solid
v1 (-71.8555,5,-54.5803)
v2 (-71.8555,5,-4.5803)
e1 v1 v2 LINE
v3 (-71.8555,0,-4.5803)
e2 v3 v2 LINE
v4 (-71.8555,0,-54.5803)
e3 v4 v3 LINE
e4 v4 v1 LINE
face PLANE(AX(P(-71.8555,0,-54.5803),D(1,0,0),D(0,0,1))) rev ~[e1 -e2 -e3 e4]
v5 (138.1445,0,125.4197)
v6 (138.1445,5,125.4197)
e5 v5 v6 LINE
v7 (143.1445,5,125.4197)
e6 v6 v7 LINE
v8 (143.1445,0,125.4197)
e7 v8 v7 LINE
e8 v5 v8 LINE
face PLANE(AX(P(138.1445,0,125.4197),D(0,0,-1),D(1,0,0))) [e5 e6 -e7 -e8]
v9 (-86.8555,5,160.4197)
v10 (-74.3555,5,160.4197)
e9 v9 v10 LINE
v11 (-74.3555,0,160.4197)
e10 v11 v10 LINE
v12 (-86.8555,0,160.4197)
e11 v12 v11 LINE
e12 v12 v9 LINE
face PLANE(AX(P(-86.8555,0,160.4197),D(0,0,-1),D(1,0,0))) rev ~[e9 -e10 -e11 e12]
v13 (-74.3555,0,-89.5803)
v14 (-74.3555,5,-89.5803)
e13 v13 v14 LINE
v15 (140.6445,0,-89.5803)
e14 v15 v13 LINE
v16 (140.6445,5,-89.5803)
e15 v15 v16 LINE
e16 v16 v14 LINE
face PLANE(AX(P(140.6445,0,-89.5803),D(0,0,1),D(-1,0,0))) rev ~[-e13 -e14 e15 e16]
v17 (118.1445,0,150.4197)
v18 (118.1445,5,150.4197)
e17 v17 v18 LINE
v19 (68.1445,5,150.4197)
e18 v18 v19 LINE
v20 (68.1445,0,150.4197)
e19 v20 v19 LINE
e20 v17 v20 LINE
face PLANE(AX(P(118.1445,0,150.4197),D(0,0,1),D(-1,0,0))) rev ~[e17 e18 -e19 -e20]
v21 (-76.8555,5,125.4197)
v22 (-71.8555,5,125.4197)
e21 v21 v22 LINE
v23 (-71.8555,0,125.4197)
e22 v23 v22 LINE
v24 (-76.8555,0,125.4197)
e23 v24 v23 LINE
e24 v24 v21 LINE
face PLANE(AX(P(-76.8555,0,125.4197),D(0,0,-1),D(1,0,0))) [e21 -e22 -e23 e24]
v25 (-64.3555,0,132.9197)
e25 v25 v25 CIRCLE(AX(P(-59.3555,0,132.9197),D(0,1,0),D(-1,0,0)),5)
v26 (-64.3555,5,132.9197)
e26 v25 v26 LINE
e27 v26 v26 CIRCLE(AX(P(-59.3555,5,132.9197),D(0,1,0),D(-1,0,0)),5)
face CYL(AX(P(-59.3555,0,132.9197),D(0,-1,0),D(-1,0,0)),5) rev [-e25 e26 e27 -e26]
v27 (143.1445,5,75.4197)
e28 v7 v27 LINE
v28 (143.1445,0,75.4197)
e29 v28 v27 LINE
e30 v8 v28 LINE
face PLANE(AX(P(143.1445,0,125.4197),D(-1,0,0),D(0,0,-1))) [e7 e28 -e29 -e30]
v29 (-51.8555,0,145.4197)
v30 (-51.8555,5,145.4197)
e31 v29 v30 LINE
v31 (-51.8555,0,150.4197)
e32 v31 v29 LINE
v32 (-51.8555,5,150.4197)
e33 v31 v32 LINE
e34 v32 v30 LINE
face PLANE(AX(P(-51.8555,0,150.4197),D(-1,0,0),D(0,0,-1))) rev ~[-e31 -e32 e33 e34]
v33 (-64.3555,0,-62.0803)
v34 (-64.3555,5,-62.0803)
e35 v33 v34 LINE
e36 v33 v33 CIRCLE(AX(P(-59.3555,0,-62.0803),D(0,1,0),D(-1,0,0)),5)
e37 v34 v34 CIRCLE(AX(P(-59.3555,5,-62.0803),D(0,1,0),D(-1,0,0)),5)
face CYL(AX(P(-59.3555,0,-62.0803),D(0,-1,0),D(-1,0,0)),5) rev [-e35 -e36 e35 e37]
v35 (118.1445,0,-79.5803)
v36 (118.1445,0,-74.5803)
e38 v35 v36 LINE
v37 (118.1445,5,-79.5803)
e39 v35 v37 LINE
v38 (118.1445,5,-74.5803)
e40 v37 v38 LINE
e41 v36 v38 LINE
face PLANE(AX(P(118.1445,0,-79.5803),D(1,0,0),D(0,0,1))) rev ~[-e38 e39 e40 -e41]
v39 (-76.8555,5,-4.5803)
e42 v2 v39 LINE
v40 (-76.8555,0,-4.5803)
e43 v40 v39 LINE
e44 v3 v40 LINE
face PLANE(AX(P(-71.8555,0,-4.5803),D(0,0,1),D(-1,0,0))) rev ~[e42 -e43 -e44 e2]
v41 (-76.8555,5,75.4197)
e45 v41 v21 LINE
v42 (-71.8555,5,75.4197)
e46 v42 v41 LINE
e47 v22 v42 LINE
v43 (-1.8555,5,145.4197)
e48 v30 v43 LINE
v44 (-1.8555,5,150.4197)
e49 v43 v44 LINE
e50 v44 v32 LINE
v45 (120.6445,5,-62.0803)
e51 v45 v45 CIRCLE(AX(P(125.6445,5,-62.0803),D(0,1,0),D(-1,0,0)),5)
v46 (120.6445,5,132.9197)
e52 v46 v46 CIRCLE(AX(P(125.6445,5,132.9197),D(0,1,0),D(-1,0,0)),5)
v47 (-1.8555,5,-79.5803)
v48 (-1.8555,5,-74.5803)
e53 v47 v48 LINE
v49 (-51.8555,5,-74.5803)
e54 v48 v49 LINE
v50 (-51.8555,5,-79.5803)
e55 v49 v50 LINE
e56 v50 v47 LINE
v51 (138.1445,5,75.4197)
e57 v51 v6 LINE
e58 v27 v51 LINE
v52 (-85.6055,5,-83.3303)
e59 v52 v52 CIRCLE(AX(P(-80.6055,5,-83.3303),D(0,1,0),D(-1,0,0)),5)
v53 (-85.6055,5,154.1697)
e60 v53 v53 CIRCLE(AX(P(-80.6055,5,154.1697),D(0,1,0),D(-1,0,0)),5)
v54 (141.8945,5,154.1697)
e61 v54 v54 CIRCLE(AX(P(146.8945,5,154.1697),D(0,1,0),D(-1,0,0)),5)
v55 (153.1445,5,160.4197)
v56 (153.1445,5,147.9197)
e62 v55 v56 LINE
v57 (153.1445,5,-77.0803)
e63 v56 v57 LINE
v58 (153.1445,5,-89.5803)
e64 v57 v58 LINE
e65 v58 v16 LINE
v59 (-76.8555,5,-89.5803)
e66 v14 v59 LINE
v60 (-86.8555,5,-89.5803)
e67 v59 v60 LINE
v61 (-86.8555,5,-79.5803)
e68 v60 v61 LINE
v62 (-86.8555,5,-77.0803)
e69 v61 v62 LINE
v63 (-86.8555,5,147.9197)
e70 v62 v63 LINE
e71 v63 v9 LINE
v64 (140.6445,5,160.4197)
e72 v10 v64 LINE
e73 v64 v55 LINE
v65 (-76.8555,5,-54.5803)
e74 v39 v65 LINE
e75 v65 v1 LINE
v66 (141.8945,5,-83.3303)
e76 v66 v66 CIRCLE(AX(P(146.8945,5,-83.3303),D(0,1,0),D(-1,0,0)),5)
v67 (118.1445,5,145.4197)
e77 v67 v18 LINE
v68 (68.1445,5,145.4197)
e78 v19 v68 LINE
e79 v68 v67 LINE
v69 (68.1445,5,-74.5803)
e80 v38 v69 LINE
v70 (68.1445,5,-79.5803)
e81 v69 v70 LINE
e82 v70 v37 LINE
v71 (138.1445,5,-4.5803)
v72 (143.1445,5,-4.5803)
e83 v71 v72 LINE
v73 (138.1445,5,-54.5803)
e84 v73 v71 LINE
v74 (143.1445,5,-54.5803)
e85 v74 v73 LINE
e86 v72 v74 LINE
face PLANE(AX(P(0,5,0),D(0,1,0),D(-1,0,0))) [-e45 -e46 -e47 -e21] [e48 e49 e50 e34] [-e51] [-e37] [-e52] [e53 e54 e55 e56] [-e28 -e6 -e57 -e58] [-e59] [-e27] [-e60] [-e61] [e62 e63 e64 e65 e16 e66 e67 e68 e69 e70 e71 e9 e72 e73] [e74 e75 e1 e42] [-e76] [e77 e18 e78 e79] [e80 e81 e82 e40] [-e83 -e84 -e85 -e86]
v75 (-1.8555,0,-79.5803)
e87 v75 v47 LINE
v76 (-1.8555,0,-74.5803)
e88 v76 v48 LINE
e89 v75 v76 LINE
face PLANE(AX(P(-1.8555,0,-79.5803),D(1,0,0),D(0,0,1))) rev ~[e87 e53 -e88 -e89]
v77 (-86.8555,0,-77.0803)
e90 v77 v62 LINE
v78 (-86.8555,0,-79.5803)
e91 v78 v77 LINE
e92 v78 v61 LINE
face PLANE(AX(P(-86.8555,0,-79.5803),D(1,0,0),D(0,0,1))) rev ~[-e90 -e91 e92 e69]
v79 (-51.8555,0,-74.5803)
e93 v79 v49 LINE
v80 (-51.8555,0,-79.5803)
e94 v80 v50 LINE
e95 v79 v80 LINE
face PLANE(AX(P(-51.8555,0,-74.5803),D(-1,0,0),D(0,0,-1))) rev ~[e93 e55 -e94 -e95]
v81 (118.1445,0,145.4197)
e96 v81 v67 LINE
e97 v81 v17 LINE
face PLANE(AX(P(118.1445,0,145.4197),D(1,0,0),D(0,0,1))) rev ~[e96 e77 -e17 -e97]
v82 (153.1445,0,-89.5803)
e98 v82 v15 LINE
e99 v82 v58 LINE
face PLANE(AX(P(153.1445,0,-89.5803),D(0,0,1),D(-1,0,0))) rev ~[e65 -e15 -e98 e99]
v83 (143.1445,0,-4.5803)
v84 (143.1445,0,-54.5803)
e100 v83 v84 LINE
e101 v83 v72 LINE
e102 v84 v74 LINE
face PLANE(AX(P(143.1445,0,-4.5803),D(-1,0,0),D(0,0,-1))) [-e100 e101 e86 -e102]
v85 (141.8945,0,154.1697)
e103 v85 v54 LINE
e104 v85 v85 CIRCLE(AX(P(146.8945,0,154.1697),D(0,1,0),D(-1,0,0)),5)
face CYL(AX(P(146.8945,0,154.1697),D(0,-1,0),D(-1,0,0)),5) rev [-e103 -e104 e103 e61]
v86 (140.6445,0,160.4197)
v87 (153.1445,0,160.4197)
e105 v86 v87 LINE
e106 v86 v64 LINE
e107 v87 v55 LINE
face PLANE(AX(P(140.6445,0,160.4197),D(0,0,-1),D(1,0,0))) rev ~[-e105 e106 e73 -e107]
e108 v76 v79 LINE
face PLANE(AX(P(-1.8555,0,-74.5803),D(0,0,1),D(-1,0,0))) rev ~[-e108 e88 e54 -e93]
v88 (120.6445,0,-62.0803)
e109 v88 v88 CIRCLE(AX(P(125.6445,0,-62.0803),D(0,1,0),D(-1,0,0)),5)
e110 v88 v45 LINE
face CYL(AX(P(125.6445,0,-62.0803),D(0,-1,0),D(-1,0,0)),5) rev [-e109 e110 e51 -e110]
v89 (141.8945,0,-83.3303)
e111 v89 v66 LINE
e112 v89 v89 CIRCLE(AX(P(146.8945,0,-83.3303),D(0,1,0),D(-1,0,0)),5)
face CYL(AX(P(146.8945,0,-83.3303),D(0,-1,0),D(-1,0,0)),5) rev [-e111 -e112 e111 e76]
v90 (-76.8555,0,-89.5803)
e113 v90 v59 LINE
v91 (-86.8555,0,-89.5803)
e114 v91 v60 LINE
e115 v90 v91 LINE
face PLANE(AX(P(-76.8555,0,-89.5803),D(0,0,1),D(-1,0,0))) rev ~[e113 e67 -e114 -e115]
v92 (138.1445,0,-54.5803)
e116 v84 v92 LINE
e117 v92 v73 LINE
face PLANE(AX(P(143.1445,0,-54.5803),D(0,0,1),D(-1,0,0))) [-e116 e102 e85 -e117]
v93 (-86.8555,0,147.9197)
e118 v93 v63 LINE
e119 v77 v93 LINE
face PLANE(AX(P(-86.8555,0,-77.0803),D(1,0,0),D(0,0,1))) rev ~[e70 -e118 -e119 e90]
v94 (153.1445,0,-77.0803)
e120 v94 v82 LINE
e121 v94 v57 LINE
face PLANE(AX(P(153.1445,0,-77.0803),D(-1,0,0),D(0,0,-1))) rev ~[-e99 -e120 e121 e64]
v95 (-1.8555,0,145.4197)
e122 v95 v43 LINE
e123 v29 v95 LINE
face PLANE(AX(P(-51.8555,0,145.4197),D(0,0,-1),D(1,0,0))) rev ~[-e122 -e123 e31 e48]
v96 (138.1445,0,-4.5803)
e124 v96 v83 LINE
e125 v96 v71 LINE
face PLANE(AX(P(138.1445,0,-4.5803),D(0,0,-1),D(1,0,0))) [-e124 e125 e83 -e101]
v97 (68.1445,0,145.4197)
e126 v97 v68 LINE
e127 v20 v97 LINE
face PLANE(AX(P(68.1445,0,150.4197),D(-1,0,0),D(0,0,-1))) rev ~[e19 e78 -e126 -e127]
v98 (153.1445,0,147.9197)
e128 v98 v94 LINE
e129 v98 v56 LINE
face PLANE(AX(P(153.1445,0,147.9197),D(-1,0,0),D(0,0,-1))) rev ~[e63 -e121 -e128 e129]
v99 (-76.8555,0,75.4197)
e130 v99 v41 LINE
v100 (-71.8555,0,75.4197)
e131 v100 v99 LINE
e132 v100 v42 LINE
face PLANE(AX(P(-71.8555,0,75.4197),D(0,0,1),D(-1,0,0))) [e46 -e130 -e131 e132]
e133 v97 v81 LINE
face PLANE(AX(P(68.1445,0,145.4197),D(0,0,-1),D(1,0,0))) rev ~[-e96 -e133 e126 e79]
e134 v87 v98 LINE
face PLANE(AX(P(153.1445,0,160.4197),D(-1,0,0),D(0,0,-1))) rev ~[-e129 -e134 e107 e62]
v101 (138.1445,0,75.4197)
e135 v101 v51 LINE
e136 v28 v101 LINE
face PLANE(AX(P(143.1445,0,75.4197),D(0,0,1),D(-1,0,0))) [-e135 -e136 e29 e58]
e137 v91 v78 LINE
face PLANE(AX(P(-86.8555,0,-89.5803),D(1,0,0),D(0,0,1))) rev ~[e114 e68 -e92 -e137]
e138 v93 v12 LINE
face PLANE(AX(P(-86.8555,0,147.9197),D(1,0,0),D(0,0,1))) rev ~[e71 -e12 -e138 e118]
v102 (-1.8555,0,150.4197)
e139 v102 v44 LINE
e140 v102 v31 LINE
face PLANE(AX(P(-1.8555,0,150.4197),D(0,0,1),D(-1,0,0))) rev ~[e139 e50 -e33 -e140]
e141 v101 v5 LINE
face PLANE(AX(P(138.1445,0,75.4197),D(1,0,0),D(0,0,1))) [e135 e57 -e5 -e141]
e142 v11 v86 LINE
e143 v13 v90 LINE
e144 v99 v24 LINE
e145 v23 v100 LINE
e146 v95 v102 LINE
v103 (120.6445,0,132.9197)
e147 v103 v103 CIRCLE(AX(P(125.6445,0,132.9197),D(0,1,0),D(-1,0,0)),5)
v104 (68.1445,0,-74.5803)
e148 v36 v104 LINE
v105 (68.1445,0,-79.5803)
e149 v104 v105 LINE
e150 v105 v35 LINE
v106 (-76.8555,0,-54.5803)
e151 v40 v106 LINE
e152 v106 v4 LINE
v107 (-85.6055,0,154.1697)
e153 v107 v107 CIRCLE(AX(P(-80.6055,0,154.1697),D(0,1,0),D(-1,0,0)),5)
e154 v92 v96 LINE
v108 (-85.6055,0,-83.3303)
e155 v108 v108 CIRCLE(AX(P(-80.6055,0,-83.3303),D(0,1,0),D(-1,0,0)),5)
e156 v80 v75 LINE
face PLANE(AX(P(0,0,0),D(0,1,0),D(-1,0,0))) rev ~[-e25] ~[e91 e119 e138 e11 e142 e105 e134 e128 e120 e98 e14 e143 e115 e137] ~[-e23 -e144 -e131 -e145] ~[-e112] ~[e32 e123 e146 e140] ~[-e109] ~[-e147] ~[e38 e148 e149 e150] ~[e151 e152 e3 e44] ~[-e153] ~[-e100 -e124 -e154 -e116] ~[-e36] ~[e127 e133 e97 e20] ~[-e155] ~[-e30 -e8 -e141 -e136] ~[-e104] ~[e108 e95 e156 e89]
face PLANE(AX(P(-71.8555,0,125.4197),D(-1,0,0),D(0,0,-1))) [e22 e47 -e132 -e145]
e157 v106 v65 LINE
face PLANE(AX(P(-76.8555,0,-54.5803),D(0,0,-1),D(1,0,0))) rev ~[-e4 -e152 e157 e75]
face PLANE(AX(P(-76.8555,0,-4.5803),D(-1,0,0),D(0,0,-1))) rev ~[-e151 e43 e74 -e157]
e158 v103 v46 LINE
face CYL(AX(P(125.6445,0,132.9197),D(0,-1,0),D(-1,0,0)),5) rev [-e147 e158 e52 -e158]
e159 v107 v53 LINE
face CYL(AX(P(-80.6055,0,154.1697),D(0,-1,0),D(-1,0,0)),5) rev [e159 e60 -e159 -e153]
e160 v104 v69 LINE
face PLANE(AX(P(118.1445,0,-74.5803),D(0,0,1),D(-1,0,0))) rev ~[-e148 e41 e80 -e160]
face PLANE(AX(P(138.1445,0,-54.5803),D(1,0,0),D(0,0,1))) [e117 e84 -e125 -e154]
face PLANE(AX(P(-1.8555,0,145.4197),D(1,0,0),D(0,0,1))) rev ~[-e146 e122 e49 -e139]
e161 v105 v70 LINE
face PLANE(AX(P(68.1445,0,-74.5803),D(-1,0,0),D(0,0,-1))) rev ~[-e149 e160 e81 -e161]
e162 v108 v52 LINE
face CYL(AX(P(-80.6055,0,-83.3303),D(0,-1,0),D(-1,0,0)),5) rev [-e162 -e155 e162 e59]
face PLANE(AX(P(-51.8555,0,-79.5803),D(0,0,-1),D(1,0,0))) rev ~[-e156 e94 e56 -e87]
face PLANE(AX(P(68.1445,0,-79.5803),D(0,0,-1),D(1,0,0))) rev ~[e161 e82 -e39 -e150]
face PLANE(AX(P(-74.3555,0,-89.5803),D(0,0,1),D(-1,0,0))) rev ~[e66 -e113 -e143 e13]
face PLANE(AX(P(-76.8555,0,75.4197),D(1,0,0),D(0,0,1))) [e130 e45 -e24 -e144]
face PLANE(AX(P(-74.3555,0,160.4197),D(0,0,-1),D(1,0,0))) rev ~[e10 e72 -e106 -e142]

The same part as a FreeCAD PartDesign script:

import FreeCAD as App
import Part
import Sketcher

V = App.Vector


def add_polygon(sketch, points):
    """Adds a closed chain of lines whose ends are joined by coincident constraints."""
    first, n = sketch.GeometryCount, len(points)
    for a, b in zip(points, points[1:] + points[:1]):
        sketch.addGeometry(Part.LineSegment(App.Vector(*a, 0), App.Vector(*b, 0)), False)
    for i in range(n):
        sketch.addConstraint(Sketcher.Constraint("Coincident", first + i, 2, first + (i + 1) % n, 1))

doc = App.newDocument("Part")
body = doc.addObject("PartDesign::Body", "Body")

# Sketch on XZ plane
sketch1 = body.newObject("Sketcher::SketchObject", "Sketch")
sketch1.AttachmentSupport = (doc.getObject("XZ_Plane"), [""])
sketch1.MapMode = "FlatFace"
add_polygon(sketch1, [(153.1445, -89.5803), (-86.8555, -89.5803), (-86.8555, 160.4197), (153.1445, 160.4197)])  # lines 0-3
sketch1.addGeometry(Part.Circle(V(146.8945, -83.3303, 0), V(0, 0, 1), 5), False)  # 4
sketch1.addGeometry(Part.Circle(V(125.6445, -62.0803, 0), V(0, 0, 1), 5), False)  # 5
add_polygon(sketch1, [(138.1445, -4.5803), (138.1445, -54.5803), (143.1445, -54.5803), (143.1445, -4.5803)])  # lines 6-9
add_polygon(sketch1, [(118.1445, -79.5803), (118.1445, -74.5803), (68.1445, -74.5803), (68.1445, -79.5803)])  # lines 10-13
add_polygon(sketch1, [(-1.8555, -79.5803), (-1.8555, -74.5803), (-51.8555, -74.5803), (-51.8555, -79.5803)])  # lines 14-17
sketch1.addGeometry(Part.Circle(V(-80.6055, -83.3303, 0), V(0, 0, 1), 5), False)  # 18
sketch1.addGeometry(Part.Circle(V(-59.3555, -62.0803, 0), V(0, 0, 1), 5), False)  # 19
add_polygon(sketch1, [(-76.8555, -54.5803), (-71.8555, -54.5803), (-71.8555, -4.5803), (-76.8555, -4.5803)])  # lines 20-23
add_polygon(sketch1, [(143.1445, 75.4197), (143.1445, 125.4197), (138.1445, 125.4197), (138.1445, 75.4197)])  # lines 24-27
sketch1.addGeometry(Part.Circle(V(125.6445, 132.9197, 0), V(0, 0, 1), 5), False)  # 28
sketch1.addGeometry(Part.Circle(V(146.8945, 154.1697, 0), V(0, 0, 1), 5), False)  # 29
add_polygon(sketch1, [(68.1445, 150.4197), (68.1445, 145.4197), (118.1445, 145.4197), (118.1445, 150.4197)])  # lines 30-33
add_polygon(sketch1, [(-76.8555, 125.4197), (-76.8555, 75.4197), (-71.8555, 75.4197), (-71.8555, 125.4197)])  # lines 34-37
add_polygon(sketch1, [(-51.8555, 150.4197), (-51.8555, 145.4197), (-1.8555, 145.4197), (-1.8555, 150.4197)])  # lines 38-41
sketch1.addGeometry(Part.Circle(V(-59.3555, 132.9197, 0), V(0, 0, 1), 5), False)  # 42
sketch1.addGeometry(Part.Circle(V(-80.6055, 154.1697, 0), V(0, 0, 1), 5), False)  # 43
sketch1.addConstraint(Sketcher.Constraint("Horizontal", 0))
sketch1.addConstraint(Sketcher.Constraint("Vertical", 1))
sketch1.addConstraint(Sketcher.Constraint("Horizontal", 2))
sketch1.addConstraint(Sketcher.Constraint("Vertical", 3))
sketch1.addConstraint(Sketcher.Constraint("Vertical", 6))
sketch1.addConstraint(Sketcher.Constraint("Horizontal", 7))
sketch1.addConstraint(Sketcher.Constraint("Vertical", 8))
sketch1.addConstraint(Sketcher.Constraint("Horizontal", 9))
sketch1.addConstraint(Sketcher.Constraint("Vertical", 10))
sketch1.addConstraint(Sketcher.Constraint("Horizontal", 11))
sketch1.addConstraint(Sketcher.Constraint("Vertical", 12))
sketch1.addConstraint(Sketcher.Constraint("Horizontal", 13))
sketch1.addConstraint(Sketcher.Constraint("Vertical", 14))
sketch1.addConstraint(Sketcher.Constraint("Horizontal", 15))
sketch1.addConstraint(Sketcher.Constraint("Vertical", 16))
sketch1.addConstraint(Sketcher.Constraint("Horizontal", 17))
sketch1.addConstraint(Sketcher.Constraint("Horizontal", 20))
sketch1.addConstraint(Sketcher.Constraint("Vertical", 21))
sketch1.addConstraint(Sketcher.Constraint("Horizontal", 22))
sketch1.addConstraint(Sketcher.Constraint("Vertical", 23))
sketch1.addConstraint(Sketcher.Constraint("Vertical", 24))
sketch1.addConstraint(Sketcher.Constraint("Horizontal", 25))
sketch1.addConstraint(Sketcher.Constraint("Vertical", 26))
sketch1.addConstraint(Sketcher.Constraint("Horizontal", 27))
sketch1.addConstraint(Sketcher.Constraint("Vertical", 30))
sketch1.addConstraint(Sketcher.Constraint("Horizontal", 31))
sketch1.addConstraint(Sketcher.Constraint("Vertical", 32))
sketch1.addConstraint(Sketcher.Constraint("Horizontal", 33))
sketch1.addConstraint(Sketcher.Constraint("Vertical", 34))
sketch1.addConstraint(Sketcher.Constraint("Horizontal", 35))
sketch1.addConstraint(Sketcher.Constraint("Vertical", 36))
sketch1.addConstraint(Sketcher.Constraint("Horizontal", 37))
sketch1.addConstraint(Sketcher.Constraint("Vertical", 38))
sketch1.addConstraint(Sketcher.Constraint("Horizontal", 39))
sketch1.addConstraint(Sketcher.Constraint("Vertical", 40))
sketch1.addConstraint(Sketcher.Constraint("Horizontal", 41))
sketch1.addConstraint(Sketcher.Constraint("Equal", 4, 5))
sketch1.addConstraint(Sketcher.Constraint("Equal", 5, 18))
sketch1.addConstraint(Sketcher.Constraint("Equal", 18, 19))
sketch1.addConstraint(Sketcher.Constraint("Equal", 19, 28))
sketch1.addConstraint(Sketcher.Constraint("Equal", 28, 29))
sketch1.addConstraint(Sketcher.Constraint("Equal", 29, 42))
sketch1.addConstraint(Sketcher.Constraint("Equal", 42, 43))
sketch1.addConstraint(Sketcher.Constraint("Horizontal", 4, 3, 18, 3))
sketch1.addConstraint(Sketcher.Constraint("Horizontal", 5, 3, 19, 3))
sketch1.addConstraint(Sketcher.Constraint("Horizontal", 28, 3, 42, 3))
sketch1.addConstraint(Sketcher.Constraint("Horizontal", 29, 3, 43, 3))
sketch1.addConstraint(Sketcher.Constraint("Horizontal", 11, 2, 14, 2))
sketch1.addConstraint(Sketcher.Constraint("Horizontal", 13, 2, 16, 2))
sketch1.addConstraint(Sketcher.Constraint("Horizontal", 7, 2, 20, 2))
sketch1.addConstraint(Sketcher.Constraint("Horizontal", 9, 2, 21, 2))
sketch1.addConstraint(Sketcher.Constraint("Horizontal", 27, 2, 34, 2))
sketch1.addConstraint(Sketcher.Constraint("Horizontal", 25, 2, 36, 2))
sketch1.addConstraint(Sketcher.Constraint("Horizontal", 31, 2, 38, 2))
sketch1.addConstraint(Sketcher.Constraint("Horizontal", 33, 2, 40, 2))
sketch1.addConstraint(Sketcher.Constraint("Vertical", 5, 3, 28, 3))
sketch1.addConstraint(Sketcher.Constraint("Vertical", 4, 3, 29, 3))
sketch1.addConstraint(Sketcher.Constraint("Vertical", 19, 3, 42, 3))
sketch1.addConstraint(Sketcher.Constraint("Vertical", 18, 3, 43, 3))
sketch1.addConstraint(Sketcher.Constraint("Vertical", 8, 2, 24, 2))
sketch1.addConstraint(Sketcher.Constraint("Vertical", 9, 2, 25, 2))
sketch1.addConstraint(Sketcher.Constraint("Vertical", 12, 2, 30, 2))
sketch1.addConstraint(Sketcher.Constraint("Vertical", 13, 2, 31, 2))
sketch1.addConstraint(Sketcher.Constraint("Vertical", 23, 2, 34, 2))
sketch1.addConstraint(Sketcher.Constraint("Vertical", 21, 2, 35, 2))
sketch1.addConstraint(Sketcher.Constraint("Vertical", 16, 2, 38, 2))
sketch1.addConstraint(Sketcher.Constraint("Vertical", 17, 2, 39, 2))
sketch1.addConstraint(Sketcher.Constraint("Equal", 13, 15))
sketch1.addConstraint(Sketcher.Constraint("Equal", 9, 20))
sketch1.addConstraint(Sketcher.Constraint("Equal", 41, 6))
sketch1.addConstraint(Sketcher.Constraint("Equal", 37, 10))
sketch1.addConstraint(Sketcher.Constraint("Equal", 23, 24))
sketch1.addConstraint(Sketcher.Constraint("Equal", 16, 30))
sketch1.addConstraint(Sketcher.Constraint("Diameter", 4, 10.0))
sketch1.addConstraint(Sketcher.Constraint("DistanceX", 0, 2, 0, 1, 240.0))
sketch1.addConstraint(Sketcher.Constraint("DistanceX", 7, 1, 7, 2, 5.0))
sketch1.addConstraint(Sketcher.Constraint("DistanceY", 1, 1, 1, 2, 250.0))
sketch1.addConstraint(Sketcher.Constraint("DistanceY", 3, 2, 6, 2, 35.0))
sketch1.addConstraint(Sketcher.Constraint("DistanceX", 7, 2, 3, 2, 10.0))
sketch1.addConstraint(Sketcher.Constraint("DistanceX", 10, 2, 3, 2, 35.0))
sketch1.addConstraint(Sketcher.Constraint("DistanceX", 0, 2, 15, 2, 35.0))
sketch1.addConstraint(Sketcher.Constraint("DistanceY", 0, 2, 16, 2, 10.0))
sketch1.addConstraint(Sketcher.Constraint("DistanceY", 24, 2, 2, 2, 35.0))
sketch1.addConstraint(Sketcher.Constraint("DistanceX", 1, 2, 34, 2, 10.0))
sketch1.addConstraint(Sketcher.Constraint("DistanceX", 11, 2, 11, 1, 50.0))
sketch1.addConstraint(Sketcher.Constraint("DistanceX", 19, 3, 5, 3, 185.0))
sketch1.addConstraint(Sketcher.Constraint("DistanceY", 5, 3, 28, 3, 195.0))
sketch1.addConstraint(Sketcher.Constraint("DistanceY", 25, 2, 30, 2, 20.0))
sketch1.addConstraint(Sketcher.Constraint("DistanceX", 18, 3, 4, 3, 227.5))
sketch1.addConstraint(Sketcher.Constraint("DistanceY", 4, 3, 29, 3, 237.5))
sketch1.addConstraint(Sketcher.Constraint("DistanceX", 0, 2, 19, 3, 27.5))
sketch1.addConstraint(Sketcher.Constraint("DistanceY", 0, 2, 19, 3, 27.5))
sketch1.addConstraint(Sketcher.Constraint("DistanceX", 5, 3, 4, 3, 21.25))
sketch1.addConstraint(Sketcher.Constraint("DistanceY", 4, 3, 5, 3, 21.25))
sketch1.addConstraint(Sketcher.Constraint("DistanceX", -1, 1, 4, 3, 146.8945))
sketch1.addConstraint(Sketcher.Constraint("DistanceY", 4, 3, -1, 1, 83.3303))
pad1 = body.newObject("PartDesign::Pad", "Pad")
pad1.Profile = sketch1
pad1.Length = 5
pad1.Reversed = True

doc.recompute()
